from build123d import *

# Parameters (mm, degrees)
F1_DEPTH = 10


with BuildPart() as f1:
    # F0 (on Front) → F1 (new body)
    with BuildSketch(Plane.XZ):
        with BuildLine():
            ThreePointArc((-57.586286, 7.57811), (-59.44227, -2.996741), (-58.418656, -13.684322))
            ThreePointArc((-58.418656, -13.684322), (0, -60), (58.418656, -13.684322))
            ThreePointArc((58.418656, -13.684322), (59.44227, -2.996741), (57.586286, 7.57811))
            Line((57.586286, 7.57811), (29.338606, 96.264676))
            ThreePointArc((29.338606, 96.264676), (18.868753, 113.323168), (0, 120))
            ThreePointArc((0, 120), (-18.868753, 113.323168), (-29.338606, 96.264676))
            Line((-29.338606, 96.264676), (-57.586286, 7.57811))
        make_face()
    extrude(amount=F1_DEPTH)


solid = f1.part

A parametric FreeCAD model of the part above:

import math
import FreeCAD as App
import Part
import Sketcher
from FreeCAD import Vector
Q = App.Units.Quantity

doc = App.newDocument("Part")
params = doc.addObject("Spreadsheet::Sheet", "Params")
for row, (alias, value) in enumerate([
    ("sketch1_radius", "60 mm"),
    ("sketch1_radius2", "29.999998 mm"),
    ("pad1_length", "10 mm"),
], start=1):
    params.set(f"A{row}", alias)
    params.set(f"B{row}", "=" + value)
    params.setAlias(f"B{row}", alias)

body = doc.addObject("PartDesign::Body", "Body")

sketch1 = body.newObject("Sketcher::SketchObject", "Sketch")
sketch1.AttachmentSupport = (doc.getObject("XZ_Plane"), [""])
sketch1.MapMode = "FlatFace"
sketch1.addGeometry([
    Part.ArcOfCircle(Part.Circle(Vector(-19, -5, 0), Vector(0, 0, 1), 40), math.radians(162), math.radians(193)),
    Part.ArcOfCircle(Part.Circle(Vector(0, 0, 0), Vector(0, 0, 1), 60), math.radians(-167), math.radians(-13)),
    Part.ArcOfCircle(Part.Circle(Vector(19, -5, 0), Vector(0, 0, 1), 40), math.radians(-13), math.radians(18)),
    Part.LineSegment(Vector(58, 8, 0), Vector(29, 96, 0)),
    Part.ArcOfCircle(Part.Circle(Vector(0, 90, 0), Vector(0, 0, 1), 30), math.radians(12), math.radians(90)),
    Part.ArcOfCircle(Part.Circle(Vector(0, 90, 0), Vector(0, 0, 1), 30), math.radians(90), math.radians(168)),
    Part.LineSegment(Vector(-29, 96, 0), Vector(-58, 8, 0)),
], False)
sketch1.addConstraint([
    Sketcher.Constraint("Tangent", 0, 2, 1, 1),
    Sketcher.Constraint("Tangent", 1, 2, 2, 1),
    Sketcher.Constraint("Tangent", 2, 2, 3, 1),
    Sketcher.Constraint("Coincident", 3, 2, 4, 1),
    Sketcher.Constraint("Tangent", 4, 2, 5, 1),
    Sketcher.Constraint("Coincident", 5, 2, 6, 1),
    Sketcher.Constraint("Tangent", 6, 2, 0, 1),
    Sketcher.Constraint("Coincident", 1, 3, -1, 1),
    Sketcher.Constraint("Equal", 0, 2),
    Sketcher.Constraint("Equal", 4, 5),
    Sketcher.Constraint("Symmetric", 3, 2, 5, 2, -2),
    Sketcher.Constraint("PointOnObject", 4, 2, -2),
    Sketcher.Constraint("Horizontal", 0, 3, 2, 3),
    Sketcher.Constraint("Radius", 1, Q("60 mm")),
    Sketcher.Constraint("Radius", 4, Q("29.999998 mm")),
    Sketcher.Constraint("DistanceY", -1, 1, 4, 3, Q("90.000002 mm")),
    Sketcher.Constraint("Radius", 0, Q("40.000004 mm")),
    Sketcher.Constraint("Distance", 3, Q("93.076519 mm")),
    Sketcher.Constraint("DistanceX", 0, 3, -1, 1, Q("19.472881 mm")),
])
sketch1.setExpression("Constraints[13]", "Params.sketch1_radius")
sketch1.setExpression("Constraints[14]", "Params.sketch1_radius2")
pad1 = body.newObject("PartDesign::Pad", "Pad")
pad1.Profile = sketch1
pad1.setExpression("Length", "Params.pad1_length")

doc.recompute()
